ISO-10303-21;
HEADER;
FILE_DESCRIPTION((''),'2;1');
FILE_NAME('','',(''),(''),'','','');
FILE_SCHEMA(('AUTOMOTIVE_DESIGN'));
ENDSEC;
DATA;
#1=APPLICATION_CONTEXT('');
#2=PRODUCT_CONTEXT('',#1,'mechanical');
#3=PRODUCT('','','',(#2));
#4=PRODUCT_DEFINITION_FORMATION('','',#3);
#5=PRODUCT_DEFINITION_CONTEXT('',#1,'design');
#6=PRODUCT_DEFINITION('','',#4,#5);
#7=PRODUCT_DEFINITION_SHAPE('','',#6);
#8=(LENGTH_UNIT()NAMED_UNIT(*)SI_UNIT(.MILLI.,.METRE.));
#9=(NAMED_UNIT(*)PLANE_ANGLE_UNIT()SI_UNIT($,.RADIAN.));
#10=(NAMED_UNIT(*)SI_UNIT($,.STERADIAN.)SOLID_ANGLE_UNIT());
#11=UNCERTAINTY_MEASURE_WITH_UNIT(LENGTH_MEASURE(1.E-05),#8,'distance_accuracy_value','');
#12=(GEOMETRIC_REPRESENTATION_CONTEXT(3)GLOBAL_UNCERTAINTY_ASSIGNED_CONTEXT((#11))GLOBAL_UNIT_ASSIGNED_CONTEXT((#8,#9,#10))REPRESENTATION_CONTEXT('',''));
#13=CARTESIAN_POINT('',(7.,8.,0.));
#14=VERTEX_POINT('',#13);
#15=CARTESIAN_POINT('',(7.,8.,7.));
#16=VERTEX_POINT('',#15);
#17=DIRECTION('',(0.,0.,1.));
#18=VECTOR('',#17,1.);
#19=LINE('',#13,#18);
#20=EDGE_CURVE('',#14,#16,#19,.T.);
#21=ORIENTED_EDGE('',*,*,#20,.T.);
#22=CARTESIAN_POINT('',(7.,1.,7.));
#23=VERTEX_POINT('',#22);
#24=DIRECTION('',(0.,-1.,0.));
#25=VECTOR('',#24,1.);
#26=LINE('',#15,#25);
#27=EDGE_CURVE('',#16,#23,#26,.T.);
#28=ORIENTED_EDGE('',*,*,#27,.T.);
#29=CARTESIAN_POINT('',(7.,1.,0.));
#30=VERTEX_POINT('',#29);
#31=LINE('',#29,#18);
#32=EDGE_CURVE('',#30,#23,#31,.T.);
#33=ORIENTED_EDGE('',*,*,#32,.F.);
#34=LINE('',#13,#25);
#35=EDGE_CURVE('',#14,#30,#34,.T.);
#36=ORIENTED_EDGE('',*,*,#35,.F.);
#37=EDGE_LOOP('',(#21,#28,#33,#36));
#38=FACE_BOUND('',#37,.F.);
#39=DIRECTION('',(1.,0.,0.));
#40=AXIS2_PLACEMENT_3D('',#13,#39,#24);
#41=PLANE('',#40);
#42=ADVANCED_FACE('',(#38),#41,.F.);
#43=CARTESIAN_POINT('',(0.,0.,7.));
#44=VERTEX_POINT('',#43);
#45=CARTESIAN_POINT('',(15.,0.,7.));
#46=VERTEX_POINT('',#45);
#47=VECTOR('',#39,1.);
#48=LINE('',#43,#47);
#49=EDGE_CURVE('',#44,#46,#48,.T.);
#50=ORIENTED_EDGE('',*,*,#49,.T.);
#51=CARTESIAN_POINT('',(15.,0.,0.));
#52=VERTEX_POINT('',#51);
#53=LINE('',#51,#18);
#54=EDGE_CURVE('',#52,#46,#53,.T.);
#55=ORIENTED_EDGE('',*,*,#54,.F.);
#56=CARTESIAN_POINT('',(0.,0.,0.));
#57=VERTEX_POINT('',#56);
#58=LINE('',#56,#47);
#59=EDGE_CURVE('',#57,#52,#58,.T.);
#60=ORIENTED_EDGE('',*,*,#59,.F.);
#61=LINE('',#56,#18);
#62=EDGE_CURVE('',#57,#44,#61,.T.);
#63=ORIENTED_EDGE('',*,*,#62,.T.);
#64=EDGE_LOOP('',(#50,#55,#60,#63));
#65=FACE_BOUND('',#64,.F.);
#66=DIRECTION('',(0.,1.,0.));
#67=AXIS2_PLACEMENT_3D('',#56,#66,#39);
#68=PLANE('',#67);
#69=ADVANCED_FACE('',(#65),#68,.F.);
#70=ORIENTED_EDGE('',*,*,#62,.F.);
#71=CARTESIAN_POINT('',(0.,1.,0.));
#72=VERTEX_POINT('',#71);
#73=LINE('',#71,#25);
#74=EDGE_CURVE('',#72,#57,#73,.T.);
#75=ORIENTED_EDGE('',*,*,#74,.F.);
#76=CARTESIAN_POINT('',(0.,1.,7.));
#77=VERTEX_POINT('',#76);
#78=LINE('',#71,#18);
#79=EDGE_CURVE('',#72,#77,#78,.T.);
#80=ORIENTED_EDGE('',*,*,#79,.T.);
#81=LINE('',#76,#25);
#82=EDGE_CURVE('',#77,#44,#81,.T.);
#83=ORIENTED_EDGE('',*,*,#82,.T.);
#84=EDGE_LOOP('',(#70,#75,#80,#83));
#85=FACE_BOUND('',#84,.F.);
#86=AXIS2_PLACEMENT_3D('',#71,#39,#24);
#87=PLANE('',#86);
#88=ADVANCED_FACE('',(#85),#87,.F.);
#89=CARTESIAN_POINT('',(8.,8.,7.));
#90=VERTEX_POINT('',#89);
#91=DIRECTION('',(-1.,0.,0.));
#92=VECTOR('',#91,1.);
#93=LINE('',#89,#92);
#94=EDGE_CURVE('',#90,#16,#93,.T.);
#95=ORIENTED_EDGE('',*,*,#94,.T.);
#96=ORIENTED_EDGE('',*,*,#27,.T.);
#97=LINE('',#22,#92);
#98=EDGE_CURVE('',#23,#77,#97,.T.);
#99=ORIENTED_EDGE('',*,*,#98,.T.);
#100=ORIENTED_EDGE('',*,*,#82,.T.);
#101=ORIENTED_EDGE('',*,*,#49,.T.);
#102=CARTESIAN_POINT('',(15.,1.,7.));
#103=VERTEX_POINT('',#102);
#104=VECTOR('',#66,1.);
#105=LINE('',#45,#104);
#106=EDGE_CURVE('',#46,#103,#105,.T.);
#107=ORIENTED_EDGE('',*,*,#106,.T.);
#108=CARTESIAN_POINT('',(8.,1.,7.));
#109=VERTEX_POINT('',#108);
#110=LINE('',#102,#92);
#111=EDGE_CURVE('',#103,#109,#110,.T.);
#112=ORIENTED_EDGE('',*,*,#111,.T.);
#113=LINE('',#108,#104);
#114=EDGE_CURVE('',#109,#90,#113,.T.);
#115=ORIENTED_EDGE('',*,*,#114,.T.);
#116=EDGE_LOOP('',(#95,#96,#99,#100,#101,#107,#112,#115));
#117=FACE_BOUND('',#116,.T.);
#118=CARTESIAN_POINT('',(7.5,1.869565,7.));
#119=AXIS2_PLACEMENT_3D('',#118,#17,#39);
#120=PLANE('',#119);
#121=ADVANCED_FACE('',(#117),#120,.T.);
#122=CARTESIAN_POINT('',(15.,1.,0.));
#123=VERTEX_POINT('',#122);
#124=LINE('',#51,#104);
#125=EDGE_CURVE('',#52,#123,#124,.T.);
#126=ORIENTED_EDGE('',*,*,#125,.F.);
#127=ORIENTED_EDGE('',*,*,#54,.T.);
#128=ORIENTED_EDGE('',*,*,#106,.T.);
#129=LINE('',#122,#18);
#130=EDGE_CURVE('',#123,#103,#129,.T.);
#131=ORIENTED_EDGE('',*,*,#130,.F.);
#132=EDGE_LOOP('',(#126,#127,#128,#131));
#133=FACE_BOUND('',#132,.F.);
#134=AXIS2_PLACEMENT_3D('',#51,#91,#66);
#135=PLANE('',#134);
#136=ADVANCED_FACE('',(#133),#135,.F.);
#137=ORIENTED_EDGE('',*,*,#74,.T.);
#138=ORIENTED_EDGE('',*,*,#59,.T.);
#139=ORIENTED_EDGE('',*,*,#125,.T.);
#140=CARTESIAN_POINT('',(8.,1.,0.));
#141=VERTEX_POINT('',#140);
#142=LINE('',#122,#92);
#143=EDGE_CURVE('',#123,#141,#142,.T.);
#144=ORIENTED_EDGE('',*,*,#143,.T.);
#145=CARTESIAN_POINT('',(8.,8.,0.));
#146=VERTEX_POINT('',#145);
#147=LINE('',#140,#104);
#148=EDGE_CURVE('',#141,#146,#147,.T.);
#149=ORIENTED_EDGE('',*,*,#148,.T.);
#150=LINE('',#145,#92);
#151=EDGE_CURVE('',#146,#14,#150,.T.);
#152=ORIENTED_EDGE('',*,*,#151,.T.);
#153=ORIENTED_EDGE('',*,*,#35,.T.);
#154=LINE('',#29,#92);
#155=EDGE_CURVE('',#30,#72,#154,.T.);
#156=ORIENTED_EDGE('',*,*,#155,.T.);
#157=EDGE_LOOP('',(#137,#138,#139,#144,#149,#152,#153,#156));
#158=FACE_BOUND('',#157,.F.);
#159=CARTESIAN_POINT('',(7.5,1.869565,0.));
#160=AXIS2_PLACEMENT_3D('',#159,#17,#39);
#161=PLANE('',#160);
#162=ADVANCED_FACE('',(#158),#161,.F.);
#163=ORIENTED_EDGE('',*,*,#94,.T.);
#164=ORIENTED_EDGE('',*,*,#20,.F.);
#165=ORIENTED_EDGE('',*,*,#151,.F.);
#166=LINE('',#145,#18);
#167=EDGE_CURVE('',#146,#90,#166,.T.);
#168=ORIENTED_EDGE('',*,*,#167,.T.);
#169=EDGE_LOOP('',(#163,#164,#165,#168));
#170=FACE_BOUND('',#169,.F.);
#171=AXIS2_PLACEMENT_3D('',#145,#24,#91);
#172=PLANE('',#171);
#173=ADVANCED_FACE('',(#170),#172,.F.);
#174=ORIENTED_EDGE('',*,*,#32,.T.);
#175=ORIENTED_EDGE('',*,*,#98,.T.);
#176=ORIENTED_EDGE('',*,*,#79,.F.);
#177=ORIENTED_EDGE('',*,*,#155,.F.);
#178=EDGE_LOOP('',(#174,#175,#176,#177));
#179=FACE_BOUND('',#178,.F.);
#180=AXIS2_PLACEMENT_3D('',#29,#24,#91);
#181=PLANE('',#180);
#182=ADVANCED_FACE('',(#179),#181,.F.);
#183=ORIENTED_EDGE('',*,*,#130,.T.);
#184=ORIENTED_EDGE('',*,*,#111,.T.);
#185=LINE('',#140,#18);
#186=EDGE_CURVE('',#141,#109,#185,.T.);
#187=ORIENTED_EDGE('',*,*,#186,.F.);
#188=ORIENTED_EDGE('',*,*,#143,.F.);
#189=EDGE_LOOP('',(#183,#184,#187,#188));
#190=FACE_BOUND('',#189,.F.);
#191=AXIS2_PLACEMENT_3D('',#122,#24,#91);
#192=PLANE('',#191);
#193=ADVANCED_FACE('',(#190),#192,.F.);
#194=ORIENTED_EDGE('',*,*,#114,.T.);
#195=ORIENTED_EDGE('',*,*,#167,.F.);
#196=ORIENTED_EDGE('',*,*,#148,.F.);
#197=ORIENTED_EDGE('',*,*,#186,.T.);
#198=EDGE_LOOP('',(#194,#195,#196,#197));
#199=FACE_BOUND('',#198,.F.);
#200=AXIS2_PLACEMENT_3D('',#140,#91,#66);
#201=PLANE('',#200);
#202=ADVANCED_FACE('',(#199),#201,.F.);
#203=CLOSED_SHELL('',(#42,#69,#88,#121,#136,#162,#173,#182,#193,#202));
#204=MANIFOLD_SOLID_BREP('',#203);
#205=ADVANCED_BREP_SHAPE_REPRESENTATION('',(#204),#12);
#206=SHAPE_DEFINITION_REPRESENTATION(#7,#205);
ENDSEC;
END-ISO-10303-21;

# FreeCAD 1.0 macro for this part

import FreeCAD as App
import Part
import Sketcher


def add_polygon(sketch, points):
    """Adds a closed chain of lines whose ends are joined by coincident constraints."""
    first, n = sketch.GeometryCount, len(points)
    for a, b in zip(points, points[1:] + points[:1]):
        sketch.addGeometry(Part.LineSegment(App.Vector(*a, 0), App.Vector(*b, 0)), False)
    for i in range(n):
        sketch.addConstraint(Sketcher.Constraint("Coincident", first + i, 2, first + (i + 1) % n, 1))

doc = App.newDocument("Part")
body = doc.addObject("PartDesign::Body", "Body")

sketch1 = body.newObject("Sketcher::SketchObject", "Sketch")
sketch1.AttachmentSupport = (doc.getObject("XY_Plane"), [""])
sketch1.MapMode = "FlatFace"
add_polygon(sketch1, [(0, 0), (15, 0), (15, 1), (8, 1), (8, 8), (7, 8), (7, 1), (0, 1)])
sketch1.addConstraint(Sketcher.Constraint("Horizontal", 0))
sketch1.addConstraint(Sketcher.Constraint("Vertical", 1))
sketch1.addConstraint(Sketcher.Constraint("Horizontal", 2))
sketch1.addConstraint(Sketcher.Constraint("Vertical", 3))
sketch1.addConstraint(Sketcher.Constraint("Horizontal", 4))
sketch1.addConstraint(Sketcher.Constraint("Vertical", 5))
sketch1.addConstraint(Sketcher.Constraint("Horizontal", 6))
sketch1.addConstraint(Sketcher.Constraint("Vertical", 7))
sketch1.addConstraint(Sketcher.Constraint("Coincident", 7, 2, -1, 1))
sketch1.addConstraint(Sketcher.Constraint("Horizontal", 2, 2, 5, 2))
sketch1.addConstraint(Sketcher.Constraint("Equal", 2, 6))
sketch1.addConstraint(Sketcher.Constraint("Equal", 4, 1))
sketch1.addConstraint(Sketcher.Constraint("Equal", 6, 3))
sketch1.addConstraint(Sketcher.Constraint("DistanceX", 0, 1, 0, 2, 15.0))
sketch1.addConstraint(Sketcher.Constraint("DistanceX", 2, 2, 2, 1, 7.0))
pad1 = body.newObject("PartDesign::Pad", "Pad")
pad1.Profile = sketch1
pad1.Length = 7

doc.recompute()
